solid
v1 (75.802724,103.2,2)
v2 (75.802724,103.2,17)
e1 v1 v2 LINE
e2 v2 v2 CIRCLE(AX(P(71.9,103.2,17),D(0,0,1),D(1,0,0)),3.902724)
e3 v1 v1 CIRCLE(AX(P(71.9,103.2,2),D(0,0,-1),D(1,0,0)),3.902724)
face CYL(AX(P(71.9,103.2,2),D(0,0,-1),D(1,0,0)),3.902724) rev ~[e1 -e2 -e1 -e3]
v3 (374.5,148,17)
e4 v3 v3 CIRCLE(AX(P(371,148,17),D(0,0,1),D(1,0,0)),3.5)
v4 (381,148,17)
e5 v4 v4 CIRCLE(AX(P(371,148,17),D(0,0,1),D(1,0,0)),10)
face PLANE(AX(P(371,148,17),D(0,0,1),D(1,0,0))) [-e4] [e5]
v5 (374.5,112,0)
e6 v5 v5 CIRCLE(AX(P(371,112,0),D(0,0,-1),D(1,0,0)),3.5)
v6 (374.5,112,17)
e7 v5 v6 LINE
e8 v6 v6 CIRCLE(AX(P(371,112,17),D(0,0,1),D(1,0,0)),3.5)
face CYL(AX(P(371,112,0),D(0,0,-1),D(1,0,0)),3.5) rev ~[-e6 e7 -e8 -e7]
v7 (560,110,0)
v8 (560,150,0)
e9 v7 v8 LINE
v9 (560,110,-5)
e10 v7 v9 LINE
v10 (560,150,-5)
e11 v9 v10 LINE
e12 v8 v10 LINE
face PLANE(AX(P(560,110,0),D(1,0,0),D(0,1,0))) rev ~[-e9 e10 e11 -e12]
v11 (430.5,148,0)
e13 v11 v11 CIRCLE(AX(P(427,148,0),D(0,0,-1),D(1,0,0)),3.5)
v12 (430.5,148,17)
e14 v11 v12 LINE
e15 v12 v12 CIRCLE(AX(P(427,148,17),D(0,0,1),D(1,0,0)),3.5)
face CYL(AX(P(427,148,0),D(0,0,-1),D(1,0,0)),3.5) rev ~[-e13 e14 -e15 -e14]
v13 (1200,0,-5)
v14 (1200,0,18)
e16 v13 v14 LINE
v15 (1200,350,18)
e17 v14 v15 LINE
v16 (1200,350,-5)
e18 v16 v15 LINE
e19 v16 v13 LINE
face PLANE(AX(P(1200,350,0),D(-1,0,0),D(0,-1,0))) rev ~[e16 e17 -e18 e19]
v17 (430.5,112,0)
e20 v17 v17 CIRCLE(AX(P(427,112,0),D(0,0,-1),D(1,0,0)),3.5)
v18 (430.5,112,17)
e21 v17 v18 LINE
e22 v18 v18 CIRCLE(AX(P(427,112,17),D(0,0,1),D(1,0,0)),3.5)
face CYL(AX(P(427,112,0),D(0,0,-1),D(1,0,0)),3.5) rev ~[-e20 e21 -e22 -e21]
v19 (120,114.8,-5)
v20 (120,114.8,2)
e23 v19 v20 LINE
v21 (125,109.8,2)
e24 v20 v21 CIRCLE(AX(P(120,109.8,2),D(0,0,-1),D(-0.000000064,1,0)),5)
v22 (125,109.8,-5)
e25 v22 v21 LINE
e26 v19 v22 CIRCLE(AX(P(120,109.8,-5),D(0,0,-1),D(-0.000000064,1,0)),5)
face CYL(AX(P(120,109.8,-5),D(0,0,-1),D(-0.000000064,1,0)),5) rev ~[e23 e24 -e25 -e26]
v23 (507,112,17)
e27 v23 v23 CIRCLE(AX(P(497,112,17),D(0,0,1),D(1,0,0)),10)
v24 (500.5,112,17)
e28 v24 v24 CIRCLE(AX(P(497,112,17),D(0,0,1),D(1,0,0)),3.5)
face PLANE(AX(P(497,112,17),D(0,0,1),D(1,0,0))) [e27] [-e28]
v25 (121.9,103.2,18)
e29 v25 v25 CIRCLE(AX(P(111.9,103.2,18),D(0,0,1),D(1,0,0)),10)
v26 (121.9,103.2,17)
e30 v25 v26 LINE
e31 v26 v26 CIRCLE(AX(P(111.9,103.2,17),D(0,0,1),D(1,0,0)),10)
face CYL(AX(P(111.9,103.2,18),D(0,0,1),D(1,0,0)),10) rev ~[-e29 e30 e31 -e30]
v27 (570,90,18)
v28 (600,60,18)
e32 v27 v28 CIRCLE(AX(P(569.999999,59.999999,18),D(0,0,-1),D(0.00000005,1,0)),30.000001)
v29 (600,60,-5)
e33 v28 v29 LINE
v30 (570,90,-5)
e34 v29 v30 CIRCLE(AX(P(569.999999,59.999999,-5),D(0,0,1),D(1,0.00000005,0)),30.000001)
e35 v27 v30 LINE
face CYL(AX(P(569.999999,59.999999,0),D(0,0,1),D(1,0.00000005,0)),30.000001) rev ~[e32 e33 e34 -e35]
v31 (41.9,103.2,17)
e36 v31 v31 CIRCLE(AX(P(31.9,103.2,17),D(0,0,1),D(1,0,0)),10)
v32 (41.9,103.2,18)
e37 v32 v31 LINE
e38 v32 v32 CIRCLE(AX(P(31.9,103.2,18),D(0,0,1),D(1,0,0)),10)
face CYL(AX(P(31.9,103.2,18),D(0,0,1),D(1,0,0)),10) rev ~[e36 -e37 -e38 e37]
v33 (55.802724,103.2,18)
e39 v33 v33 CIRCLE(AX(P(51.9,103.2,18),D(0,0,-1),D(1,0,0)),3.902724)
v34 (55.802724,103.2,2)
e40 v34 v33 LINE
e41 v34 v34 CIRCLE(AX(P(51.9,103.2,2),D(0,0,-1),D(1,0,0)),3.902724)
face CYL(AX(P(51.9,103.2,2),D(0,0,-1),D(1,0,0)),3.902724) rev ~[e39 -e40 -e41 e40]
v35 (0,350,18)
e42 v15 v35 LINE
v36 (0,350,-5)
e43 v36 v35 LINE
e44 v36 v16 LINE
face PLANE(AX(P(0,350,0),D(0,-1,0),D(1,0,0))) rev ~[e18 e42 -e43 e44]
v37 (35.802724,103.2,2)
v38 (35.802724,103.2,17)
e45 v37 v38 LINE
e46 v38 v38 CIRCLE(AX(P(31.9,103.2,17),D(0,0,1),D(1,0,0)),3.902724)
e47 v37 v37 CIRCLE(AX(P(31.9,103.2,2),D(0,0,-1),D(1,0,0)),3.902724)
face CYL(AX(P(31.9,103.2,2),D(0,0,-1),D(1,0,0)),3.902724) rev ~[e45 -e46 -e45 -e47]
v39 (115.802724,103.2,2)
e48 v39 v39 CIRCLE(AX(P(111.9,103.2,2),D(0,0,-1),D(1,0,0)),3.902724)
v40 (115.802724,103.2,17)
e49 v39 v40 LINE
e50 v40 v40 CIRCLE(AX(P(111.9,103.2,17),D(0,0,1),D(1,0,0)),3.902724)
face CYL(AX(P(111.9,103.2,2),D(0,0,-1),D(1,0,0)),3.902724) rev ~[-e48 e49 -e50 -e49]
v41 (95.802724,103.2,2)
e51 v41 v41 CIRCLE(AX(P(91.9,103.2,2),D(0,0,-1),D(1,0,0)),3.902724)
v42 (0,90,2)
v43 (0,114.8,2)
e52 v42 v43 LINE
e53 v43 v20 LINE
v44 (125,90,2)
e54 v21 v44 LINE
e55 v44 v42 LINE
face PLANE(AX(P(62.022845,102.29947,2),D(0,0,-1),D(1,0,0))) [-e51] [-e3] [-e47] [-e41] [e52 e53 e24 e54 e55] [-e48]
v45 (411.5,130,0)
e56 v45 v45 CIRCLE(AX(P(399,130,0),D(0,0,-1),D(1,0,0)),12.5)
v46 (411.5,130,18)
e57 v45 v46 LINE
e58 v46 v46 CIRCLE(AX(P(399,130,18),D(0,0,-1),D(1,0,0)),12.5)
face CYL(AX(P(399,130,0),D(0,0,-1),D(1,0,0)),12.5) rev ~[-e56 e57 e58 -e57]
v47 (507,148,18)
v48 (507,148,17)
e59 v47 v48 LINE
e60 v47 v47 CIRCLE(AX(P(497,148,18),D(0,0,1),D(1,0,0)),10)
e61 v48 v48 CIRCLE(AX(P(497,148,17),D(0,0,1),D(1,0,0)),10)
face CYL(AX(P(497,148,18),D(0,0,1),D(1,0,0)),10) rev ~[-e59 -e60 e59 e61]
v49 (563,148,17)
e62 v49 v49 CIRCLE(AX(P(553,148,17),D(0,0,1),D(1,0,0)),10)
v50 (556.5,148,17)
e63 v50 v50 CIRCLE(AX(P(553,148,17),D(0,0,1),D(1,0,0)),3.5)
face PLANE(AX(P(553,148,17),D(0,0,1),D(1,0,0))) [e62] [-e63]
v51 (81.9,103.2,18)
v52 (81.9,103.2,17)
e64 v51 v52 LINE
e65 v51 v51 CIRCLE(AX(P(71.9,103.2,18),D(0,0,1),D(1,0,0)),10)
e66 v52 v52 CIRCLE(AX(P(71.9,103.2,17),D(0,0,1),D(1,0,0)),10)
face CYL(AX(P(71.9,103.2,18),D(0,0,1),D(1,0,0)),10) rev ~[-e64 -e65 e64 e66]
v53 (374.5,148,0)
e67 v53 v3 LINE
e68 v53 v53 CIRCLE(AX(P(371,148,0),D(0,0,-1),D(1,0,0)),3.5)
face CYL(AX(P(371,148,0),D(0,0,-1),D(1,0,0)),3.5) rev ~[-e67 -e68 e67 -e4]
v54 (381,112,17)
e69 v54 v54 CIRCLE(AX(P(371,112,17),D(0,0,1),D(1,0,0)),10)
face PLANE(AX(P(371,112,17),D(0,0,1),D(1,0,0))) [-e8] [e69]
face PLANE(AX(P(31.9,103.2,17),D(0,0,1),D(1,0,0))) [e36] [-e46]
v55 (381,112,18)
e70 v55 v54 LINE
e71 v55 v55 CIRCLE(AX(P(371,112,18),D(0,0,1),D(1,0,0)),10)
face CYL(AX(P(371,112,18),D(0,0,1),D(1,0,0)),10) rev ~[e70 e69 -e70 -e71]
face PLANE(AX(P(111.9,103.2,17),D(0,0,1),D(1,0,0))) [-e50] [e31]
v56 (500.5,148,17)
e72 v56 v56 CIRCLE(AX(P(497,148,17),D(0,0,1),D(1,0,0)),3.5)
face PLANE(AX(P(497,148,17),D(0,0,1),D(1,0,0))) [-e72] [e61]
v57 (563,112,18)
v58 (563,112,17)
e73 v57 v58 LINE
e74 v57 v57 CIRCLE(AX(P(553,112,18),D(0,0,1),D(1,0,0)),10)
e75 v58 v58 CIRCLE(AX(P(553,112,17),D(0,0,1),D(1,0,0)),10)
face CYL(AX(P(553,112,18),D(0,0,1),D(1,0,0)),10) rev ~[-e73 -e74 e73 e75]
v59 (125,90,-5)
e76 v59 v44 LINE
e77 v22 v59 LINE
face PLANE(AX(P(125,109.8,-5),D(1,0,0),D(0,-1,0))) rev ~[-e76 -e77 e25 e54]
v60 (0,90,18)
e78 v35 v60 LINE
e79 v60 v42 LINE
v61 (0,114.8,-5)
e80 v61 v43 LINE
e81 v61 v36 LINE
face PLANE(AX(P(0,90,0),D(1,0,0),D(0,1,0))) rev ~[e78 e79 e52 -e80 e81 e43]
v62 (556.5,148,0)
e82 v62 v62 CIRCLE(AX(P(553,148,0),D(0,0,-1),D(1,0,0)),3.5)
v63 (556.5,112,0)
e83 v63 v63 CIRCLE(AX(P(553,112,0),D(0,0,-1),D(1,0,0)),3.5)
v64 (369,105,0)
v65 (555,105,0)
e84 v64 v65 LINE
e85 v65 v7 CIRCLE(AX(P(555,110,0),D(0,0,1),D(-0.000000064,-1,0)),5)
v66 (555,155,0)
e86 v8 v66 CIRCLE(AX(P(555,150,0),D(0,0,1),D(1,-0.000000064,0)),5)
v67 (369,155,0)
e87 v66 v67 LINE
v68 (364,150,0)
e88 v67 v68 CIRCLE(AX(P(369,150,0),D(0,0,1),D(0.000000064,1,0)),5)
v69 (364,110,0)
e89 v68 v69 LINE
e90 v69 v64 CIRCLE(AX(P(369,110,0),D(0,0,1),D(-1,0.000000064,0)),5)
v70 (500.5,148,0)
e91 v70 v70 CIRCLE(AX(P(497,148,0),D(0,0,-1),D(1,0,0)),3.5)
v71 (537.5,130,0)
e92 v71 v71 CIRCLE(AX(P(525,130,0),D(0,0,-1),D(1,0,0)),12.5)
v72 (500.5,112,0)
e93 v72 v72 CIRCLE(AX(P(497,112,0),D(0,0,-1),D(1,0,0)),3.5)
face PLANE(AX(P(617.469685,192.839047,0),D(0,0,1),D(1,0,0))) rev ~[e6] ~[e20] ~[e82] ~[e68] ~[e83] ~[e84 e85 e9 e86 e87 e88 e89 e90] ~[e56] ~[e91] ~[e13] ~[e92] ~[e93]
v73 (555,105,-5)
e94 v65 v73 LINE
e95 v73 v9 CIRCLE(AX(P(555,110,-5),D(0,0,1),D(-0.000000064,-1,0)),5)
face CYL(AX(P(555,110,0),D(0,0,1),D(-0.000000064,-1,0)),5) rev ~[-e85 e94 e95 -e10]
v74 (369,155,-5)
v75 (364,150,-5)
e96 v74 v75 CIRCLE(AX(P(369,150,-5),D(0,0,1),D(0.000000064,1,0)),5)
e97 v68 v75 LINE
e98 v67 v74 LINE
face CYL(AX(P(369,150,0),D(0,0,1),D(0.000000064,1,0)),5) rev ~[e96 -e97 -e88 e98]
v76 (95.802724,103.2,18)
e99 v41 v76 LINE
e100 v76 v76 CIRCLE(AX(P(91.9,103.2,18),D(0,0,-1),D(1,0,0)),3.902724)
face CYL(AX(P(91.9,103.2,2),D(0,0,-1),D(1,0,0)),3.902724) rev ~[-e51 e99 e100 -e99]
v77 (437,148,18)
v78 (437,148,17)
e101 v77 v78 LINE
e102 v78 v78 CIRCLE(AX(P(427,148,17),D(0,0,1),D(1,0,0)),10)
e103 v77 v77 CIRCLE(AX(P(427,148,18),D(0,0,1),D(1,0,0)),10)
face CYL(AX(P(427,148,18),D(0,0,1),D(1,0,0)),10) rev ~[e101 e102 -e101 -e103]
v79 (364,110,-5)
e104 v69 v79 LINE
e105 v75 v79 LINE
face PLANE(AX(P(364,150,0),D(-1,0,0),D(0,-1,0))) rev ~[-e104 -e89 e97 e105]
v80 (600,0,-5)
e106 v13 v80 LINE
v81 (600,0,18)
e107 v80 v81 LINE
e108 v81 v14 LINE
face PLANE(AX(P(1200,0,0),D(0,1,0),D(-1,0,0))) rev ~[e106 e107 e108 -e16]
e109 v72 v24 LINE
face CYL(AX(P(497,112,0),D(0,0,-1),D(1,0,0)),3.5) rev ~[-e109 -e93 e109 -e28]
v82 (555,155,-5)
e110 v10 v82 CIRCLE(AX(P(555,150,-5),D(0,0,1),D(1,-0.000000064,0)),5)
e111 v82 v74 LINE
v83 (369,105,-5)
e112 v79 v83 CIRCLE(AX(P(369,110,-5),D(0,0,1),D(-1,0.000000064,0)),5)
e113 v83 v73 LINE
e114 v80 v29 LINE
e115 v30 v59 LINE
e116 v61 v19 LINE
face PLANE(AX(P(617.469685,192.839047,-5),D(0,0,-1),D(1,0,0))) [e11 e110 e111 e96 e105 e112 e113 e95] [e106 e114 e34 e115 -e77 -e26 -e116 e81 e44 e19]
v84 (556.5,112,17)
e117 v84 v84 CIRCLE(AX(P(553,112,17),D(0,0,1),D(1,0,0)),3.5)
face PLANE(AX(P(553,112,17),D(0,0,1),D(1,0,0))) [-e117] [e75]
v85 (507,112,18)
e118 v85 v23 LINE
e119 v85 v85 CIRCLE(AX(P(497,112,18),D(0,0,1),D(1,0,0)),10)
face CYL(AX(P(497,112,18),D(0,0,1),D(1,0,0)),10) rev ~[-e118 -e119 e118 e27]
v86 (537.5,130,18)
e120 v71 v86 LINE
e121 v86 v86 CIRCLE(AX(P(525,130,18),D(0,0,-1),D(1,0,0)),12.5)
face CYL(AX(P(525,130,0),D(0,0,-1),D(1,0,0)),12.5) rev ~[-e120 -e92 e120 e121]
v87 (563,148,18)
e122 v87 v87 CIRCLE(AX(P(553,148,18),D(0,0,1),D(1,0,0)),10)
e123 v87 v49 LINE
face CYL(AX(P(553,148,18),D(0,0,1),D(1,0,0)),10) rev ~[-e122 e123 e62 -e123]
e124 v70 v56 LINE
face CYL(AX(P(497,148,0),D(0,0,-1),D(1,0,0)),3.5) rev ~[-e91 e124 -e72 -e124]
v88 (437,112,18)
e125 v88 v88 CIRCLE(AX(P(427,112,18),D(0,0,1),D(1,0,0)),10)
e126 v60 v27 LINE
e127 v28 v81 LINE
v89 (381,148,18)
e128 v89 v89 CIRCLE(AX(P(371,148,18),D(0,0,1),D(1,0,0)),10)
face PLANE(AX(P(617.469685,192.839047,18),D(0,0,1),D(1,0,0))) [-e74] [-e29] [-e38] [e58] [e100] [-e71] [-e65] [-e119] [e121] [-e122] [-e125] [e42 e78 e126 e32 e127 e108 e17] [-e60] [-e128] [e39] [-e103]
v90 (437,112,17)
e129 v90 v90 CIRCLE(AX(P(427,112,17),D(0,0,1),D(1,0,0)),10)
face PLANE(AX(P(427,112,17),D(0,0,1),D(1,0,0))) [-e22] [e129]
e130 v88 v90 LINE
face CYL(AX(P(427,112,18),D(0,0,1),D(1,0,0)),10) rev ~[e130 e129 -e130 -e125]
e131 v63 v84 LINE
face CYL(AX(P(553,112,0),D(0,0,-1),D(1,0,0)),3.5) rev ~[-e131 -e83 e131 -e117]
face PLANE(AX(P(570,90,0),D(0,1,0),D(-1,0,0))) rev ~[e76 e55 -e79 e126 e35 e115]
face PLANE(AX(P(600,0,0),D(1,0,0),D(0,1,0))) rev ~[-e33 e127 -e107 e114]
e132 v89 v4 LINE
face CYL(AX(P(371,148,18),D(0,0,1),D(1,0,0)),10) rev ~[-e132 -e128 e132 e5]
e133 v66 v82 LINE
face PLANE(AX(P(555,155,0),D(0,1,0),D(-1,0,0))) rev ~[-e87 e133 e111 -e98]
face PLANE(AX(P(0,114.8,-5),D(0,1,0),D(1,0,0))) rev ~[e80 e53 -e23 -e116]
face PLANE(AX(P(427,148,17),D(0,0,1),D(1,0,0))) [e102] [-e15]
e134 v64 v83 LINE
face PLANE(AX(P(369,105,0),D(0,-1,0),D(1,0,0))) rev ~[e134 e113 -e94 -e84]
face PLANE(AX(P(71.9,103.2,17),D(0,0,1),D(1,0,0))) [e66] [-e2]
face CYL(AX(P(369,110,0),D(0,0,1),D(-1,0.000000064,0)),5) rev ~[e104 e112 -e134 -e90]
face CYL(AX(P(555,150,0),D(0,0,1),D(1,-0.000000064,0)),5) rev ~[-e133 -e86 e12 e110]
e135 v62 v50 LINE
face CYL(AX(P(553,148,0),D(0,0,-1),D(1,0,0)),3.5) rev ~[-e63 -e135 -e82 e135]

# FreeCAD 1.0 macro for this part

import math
import FreeCAD as App
import Part
import Sketcher

doc = App.newDocument("Part")
params = doc.addObject("Spreadsheet::Sheet", "Params")
for row, (alias, value) in enumerate([
    ("sketch1_radius", "30.000001 mm"),
    ("sketch1_width", "600 mm"),
    ("sketch1_width2", "1200 mm"),
    ("sketch1_height", "60 mm"),
    ("sketch1_height2", "350 mm"),
    ("pad1_length", "18 mm"),
    ("sketch2_radius", "30.000001 mm"),
    ("sketch2_radius2", "5 mm"),
    ("sketch2_width", "570 mm"),
    ("sketch2_width2", "1200 mm"),
    ("sketch2_width3", "186 mm"),
    ("pad2_length", "5 mm"),
    ("sketch3_radius", "5 mm"),
    ("sketch3_width", "125 mm"),
    ("sketch3_height", "24.8 mm"),
    ("pocket1_length", "7 mm"),
    ("sketch4_diameter", "25 mm"),
    ("sketch4_diameter2", "7 mm"),
    ("pocket2_length", "25 mm"),
    ("sketch5_diameter", "20 mm"),
    ("sketch5_diameter2", "7 mm"),
    ("pocket3_length", "1 mm"),
    ("pocket4_length", "25 mm"),
    ("sketch7_diameter", "20 mm"),
    ("pocket5_length", "1 mm"),
], start=1):
    params.set(f"A{row}", alias)
    params.set(f"B{row}", "=" + value)
    params.setAlias(f"B{row}", alias)

body = doc.addObject("PartDesign::Body", "Body")

# Sketch on XY plane
sketch1 = doc.addObject("Sketcher::SketchObject", "Sketch")
body.addObject(sketch1)
sketch1.AttachmentSupport = (doc.XY_Plane, [""])
sketch1.MapMode = "FlatFace"
sketch1.addGeometry(Part.LineSegment(App.Vector(600, 60, 0), App.Vector(600, 0, 0)), False)
sketch1.addGeometry(Part.LineSegment(App.Vector(600, 0, 0), App.Vector(1200, 0, 0)), False)
sketch1.addGeometry(Part.LineSegment(App.Vector(1200, 0, 0), App.Vector(1200, 350, 0)), False)
sketch1.addGeometry(Part.LineSegment(App.Vector(1200, 350, 0), App.Vector(0, 350, 0)), False)
sketch1.addGeometry(Part.LineSegment(App.Vector(0, 350, 0), App.Vector(0, 90, 0)), False)
sketch1.addGeometry(Part.LineSegment(App.Vector(0, 90, 0), App.Vector(570, 90, 0)), False)
sketch1.addGeometry(Part.ArcOfCircle(Part.Circle(App.Vector(570, 60, 0), App.Vector(0, 0, 1), 30), math.radians(0), math.radians(90)), False)
sketch1.addConstraint(Sketcher.Constraint("Coincident", 0, 2, 1, 1))
sketch1.addConstraint(Sketcher.Constraint("Coincident", 1, 2, 2, 1))
sketch1.addConstraint(Sketcher.Constraint("Coincident", 2, 2, 3, 1))
sketch1.addConstraint(Sketcher.Constraint("Coincident", 3, 2, 4, 1))
sketch1.addConstraint(Sketcher.Constraint("Coincident", 4, 2, 5, 1))
sketch1.addConstraint(Sketcher.Constraint("Tangent", 5, 2, 6, 2))
sketch1.addConstraint(Sketcher.Constraint("Tangent", 6, 1, 0, 1))
sketch1.addConstraint(Sketcher.Constraint("Vertical", 0))
sketch1.addConstraint(Sketcher.Constraint("Horizontal", 1))
sketch1.addConstraint(Sketcher.Constraint("Vertical", 2))
sketch1.addConstraint(Sketcher.Constraint("Horizontal", 3))
sketch1.addConstraint(Sketcher.Constraint("Vertical", 4))
sketch1.addConstraint(Sketcher.Constraint("Horizontal", 5))
sketch1.addConstraint(Sketcher.Constraint("PointOnObject", 0, 2, -1))
sketch1.addConstraint(Sketcher.Constraint("PointOnObject", 3, 2, -2))
sketch1.addConstraint(Sketcher.Constraint("Radius", 6, 30.000001))
sketch1.addConstraint(Sketcher.Constraint("DistanceX", 1, 1, 1, 2, 600.0))
sketch1.addConstraint(Sketcher.Constraint("DistanceX", 3, 2, 3, 1, 1200.0))
sketch1.addConstraint(Sketcher.Constraint("DistanceY", 0, 2, 0, 1, 60.0))
sketch1.addConstraint(Sketcher.Constraint("DistanceY", 2, 1, 2, 2, 350.0))
sketch1.setExpression("Constraints[15]", "Params.sketch1_radius")
sketch1.setExpression("Constraints[16]", "Params.sketch1_width")
sketch1.setExpression("Constraints[17]", "Params.sketch1_width2")
sketch1.setExpression("Constraints[18]", "Params.sketch1_height")
sketch1.setExpression("Constraints[19]", "Params.sketch1_height2")
pad1 = doc.addObject("PartDesign::Pad", "Pad")
body.addObject(pad1)
pad1.Profile = sketch1
pad1.setExpression("Length", "Params.pad1_length")

# Sketch on XY plane
sketch2 = doc.addObject("Sketcher::SketchObject", "Sketch001")
body.addObject(sketch2)
sketch2.AttachmentSupport = (doc.XY_Plane, [""])
sketch2.MapMode = "FlatFace"
sketch2.addGeometry(Part.LineSegment(App.Vector(600, 0, 0), App.Vector(600, 60, 0)), False)
sketch2.addGeometry(Part.ArcOfCircle(Part.Circle(App.Vector(570, 60, 0), App.Vector(0, 0, 1), 30), math.radians(0), math.radians(90)), False)
sketch2.addGeometry(Part.LineSegment(App.Vector(570, 90, 0), App.Vector(0, 90, 0)), False)
sketch2.addGeometry(Part.LineSegment(App.Vector(0, 90, 0), App.Vector(0, 350, 0)), False)
sketch2.addGeometry(Part.LineSegment(App.Vector(0, 350, 0), App.Vector(1200, 350, 0)), False)
sketch2.addGeometry(Part.LineSegment(App.Vector(1200, 350, 0), App.Vector(1200, 0, 0)), False)
sketch2.addGeometry(Part.LineSegment(App.Vector(1200, 0, 0), App.Vector(600, 0, 0)), False)
sketch2.addGeometry(Part.ArcOfCircle(Part.Circle(App.Vector(369, 110, 0), App.Vector(0, 0, 1), 5), math.radians(180), math.radians(270)), False)
sketch2.addGeometry(Part.LineSegment(App.Vector(369, 105, 0), App.Vector(555, 105, 0)), False)
sketch2.addGeometry(Part.ArcOfCircle(Part.Circle(App.Vector(555, 110, 0), App.Vector(0, 0, 1), 5), math.radians(-90), math.radians(0)), False)
sketch2.addGeometry(Part.LineSegment(App.Vector(560, 110, 0), App.Vector(560, 150, 0)), False)
sketch2.addGeometry(Part.ArcOfCircle(Part.Circle(App.Vector(555, 150, 0), App.Vector(0, 0, 1), 5), math.radians(0), math.radians(90)), False)
sketch2.addGeometry(Part.LineSegment(App.Vector(555, 155, 0), App.Vector(369, 155, 0)), False)
sketch2.addGeometry(Part.ArcOfCircle(Part.Circle(App.Vector(369, 150, 0), App.Vector(0, 0, 1), 5), math.radians(90), math.radians(180)), False)
sketch2.addGeometry(Part.LineSegment(App.Vector(364, 150, 0), App.Vector(364, 110, 0)), False)
sketch2.addConstraint(Sketcher.Constraint("Tangent", 0, 2, 1, 1))
sketch2.addConstraint(Sketcher.Constraint("Tangent", 1, 2, 2, 1))
sketch2.addConstraint(Sketcher.Constraint("Coincident", 2, 2, 3, 1))
sketch2.addConstraint(Sketcher.Constraint("Coincident", 3, 2, 4, 1))
sketch2.addConstraint(Sketcher.Constraint("Coincident", 4, 2, 5, 1))
sketch2.addConstraint(Sketcher.Constraint("Coincident", 5, 2, 6, 1))
sketch2.addConstraint(Sketcher.Constraint("Coincident", 6, 2, 0, 1))
sketch2.addConstraint(Sketcher.Constraint("Tangent", 7, 2, 8, 1))
sketch2.addConstraint(Sketcher.Constraint("Tangent", 8, 2, 9, 1))
sketch2.addConstraint(Sketcher.Constraint("Tangent", 9, 2, 10, 1))
sketch2.addConstraint(Sketcher.Constraint("Tangent", 10, 2, 11, 1))
sketch2.addConstraint(Sketcher.Constraint("Tangent", 11, 2, 12, 1))
sketch2.addConstraint(Sketcher.Constraint("Tangent", 12, 2, 13, 1))
sketch2.addConstraint(Sketcher.Constraint("Tangent", 13, 2, 14, 1))
sketch2.addConstraint(Sketcher.Constraint("Tangent", 14, 2, 7, 1))
sketch2.addConstraint(Sketcher.Constraint("Vertical", 0))
sketch2.addConstraint(Sketcher.Constraint("Horizontal", 2))
sketch2.addConstraint(Sketcher.Constraint("Vertical", 3))
sketch2.addConstraint(Sketcher.Constraint("Horizontal", 4))
sketch2.addConstraint(Sketcher.Constraint("Vertical", 5))
sketch2.addConstraint(Sketcher.Constraint("Horizontal", 6))
sketch2.addConstraint(Sketcher.Constraint("Horizontal", 8))
sketch2.addConstraint(Sketcher.Constraint("Vertical", 10))
sketch2.addConstraint(Sketcher.Constraint("Horizontal", 12))
sketch2.addConstraint(Sketcher.Constraint("Vertical", 14))
sketch2.addConstraint(Sketcher.Constraint("Equal", 7, 9))
sketch2.addConstraint(Sketcher.Constraint("Equal", 9, 11))
sketch2.addConstraint(Sketcher.Constraint("Equal", 11, 13))
sketch2.addConstraint(Sketcher.Constraint("PointOnObject", 2, 2, -2))
sketch2.addConstraint(Sketcher.Constraint("PointOnObject", 5, 2, -1))
sketch2.addConstraint(Sketcher.Constraint("Radius", 1, 30.000001))
sketch2.addConstraint(Sketcher.Constraint("Radius", 7, 5.0))
sketch2.addConstraint(Sketcher.Constraint("DistanceX", 2, 2, 2, 1, 570.0))
sketch2.addConstraint(Sketcher.Constraint("DistanceX", 4, 1, 4, 2, 1200.0))
sketch2.addConstraint(Sketcher.Constraint("DistanceX", 8, 1, 8, 2, 186.0))
sketch2.addConstraint(Sketcher.Constraint("DistanceY", 0, 1, 0, 2, 60.0))
sketch2.addConstraint(Sketcher.Constraint("DistanceY", 3, 1, 3, 2, 260.0))
sketch2.addConstraint(Sketcher.Constraint("DistanceY", 10, 1, 10, 2, 40.0))
sketch2.addConstraint(Sketcher.Constraint("DistanceX", -1, 1, 7, 3, 369.0))
sketch2.addConstraint(Sketcher.Constraint("DistanceY", -1, 1, 7, 3, 110.0))
sketch2.setExpression("Constraints[30]", "Params.sketch2_radius")
sketch2.setExpression("Constraints[31]", "Params.sketch2_radius2")
sketch2.setExpression("Constraints[32]", "Params.sketch2_width")
sketch2.setExpression("Constraints[33]", "Params.sketch2_width2")
sketch2.setExpression("Constraints[34]", "Params.sketch2_width3")
pad2 = doc.addObject("PartDesign::Pad", "Pad001")
body.addObject(pad2)
pad2.Profile = sketch2
pad2.setExpression("Length", "Params.pad2_length")
pad2.Reversed = True

# Sketch on XY plane
sketch3 = doc.addObject("Sketcher::SketchObject", "Sketch002")
body.addObject(sketch3)
sketch3.AttachmentSupport = (doc.XY_Plane, [""])
sketch3.MapMode = "FlatFace"
sketch3.AttachmentOffset = App.Placement(App.Vector(0, 0, -5), App.Rotation())
sketch3.addGeometry(Part.LineSegment(App.Vector(125, 90, 0), App.Vector(0, 90, 0)), False)
sketch3.addGeometry(Part.LineSegment(App.Vector(0, 90, 0), App.Vector(0, 114.8, 0)), False)
sketch3.addGeometry(Part.LineSegment(App.Vector(0, 114.8, 0), App.Vector(120, 114.8, 0)), False)
sketch3.addGeometry(Part.ArcOfCircle(Part.Circle(App.Vector(120, 109.8, 0), App.Vector(0, 0, 1), 5), math.radians(0), math.radians(90)), False)
sketch3.addGeometry(Part.LineSegment(App.Vector(125, 109.8, 0), App.Vector(125, 90, 0)), False)
sketch3.addConstraint(Sketcher.Constraint("Coincident", 0, 2, 1, 1))
sketch3.addConstraint(Sketcher.Constraint("Coincident", 1, 2, 2, 1))
sketch3.addConstraint(Sketcher.Constraint("Tangent", 2, 2, 3, 2))
sketch3.addConstraint(Sketcher.Constraint("Tangent", 3, 1, 4, 1))
sketch3.addConstraint(Sketcher.Constraint("Coincident", 4, 2, 0, 1))
sketch3.addConstraint(Sketcher.Constraint("Horizontal", 0))
sketch3.addConstraint(Sketcher.Constraint("Vertical", 1))
sketch3.addConstraint(Sketcher.Constraint("Horizontal", 2))
sketch3.addConstraint(Sketcher.Constraint("Vertical", 4))
sketch3.addConstraint(Sketcher.Constraint("PointOnObject", 0, 2, -2))
sketch3.addConstraint(Sketcher.Constraint("Radius", 3, 5.0))
sketch3.addConstraint(Sketcher.Constraint("DistanceX", 0, 2, 0, 1, 125.0))
sketch3.addConstraint(Sketcher.Constraint("DistanceY", 1, 1, 1, 2, 24.8))
sketch3.addConstraint(Sketcher.Constraint("DistanceY", -1, 1, 0, 2, 90.0))
sketch3.setExpression("Constraints[10]", "Params.sketch3_radius")
sketch3.setExpression("Constraints[11]", "Params.sketch3_width")
sketch3.setExpression("Constraints[12]", "Params.sketch3_height")
pocket1 = doc.addObject("PartDesign::Pocket", "Pocket")
body.addObject(pocket1)
pocket1.Profile = sketch3
pocket1.setExpression("Length", "Params.pocket1_length")
pocket1.Reversed = True

# Sketch on XY plane
sketch4 = doc.addObject("Sketcher::SketchObject", "Sketch003")
body.addObject(sketch4)
sketch4.AttachmentSupport = (doc.XY_Plane, [""])
sketch4.MapMode = "FlatFace"
sketch4.addGeometry(Part.Circle(App.Vector(525, 130, 0), App.Vector(0, 0, 1), 12.5), False)
sketch4.addGeometry(Part.Circle(App.Vector(399, 130, 0), App.Vector(0, 0, 1), 12.5), False)
sketch4.addGeometry(Part.Circle(App.Vector(371, 112, 0), App.Vector(0, 0, 1), 3.5), False)
sketch4.addGeometry(Part.Circle(App.Vector(427, 112, 0), App.Vector(0, 0, 1), 3.5), False)
sketch4.addGeometry(Part.Circle(App.Vector(371, 148, 0), App.Vector(0, 0, 1), 3.5), False)
sketch4.addGeometry(Part.Circle(App.Vector(427, 148, 0), App.Vector(0, 0, 1), 3.5), False)
sketch4.addGeometry(Part.Circle(App.Vector(497, 148, 0), App.Vector(0, 0, 1), 3.5), False)
sketch4.addGeometry(Part.Circle(App.Vector(497, 112, 0), App.Vector(0, 0, 1), 3.5), False)
sketch4.addGeometry(Part.Circle(App.Vector(553, 112, 0), App.Vector(0, 0, 1), 3.5), False)
sketch4.addGeometry(Part.Circle(App.Vector(553, 148, 0), App.Vector(0, 0, 1), 3.5), False)
sketch4.addConstraint(Sketcher.Constraint("Equal", 0, 1))
sketch4.addConstraint(Sketcher.Constraint("Equal", 2, 3))
sketch4.addConstraint(Sketcher.Constraint("Equal", 3, 4))
sketch4.addConstraint(Sketcher.Constraint("Equal", 4, 5))
sketch4.addConstraint(Sketcher.Constraint("Equal", 5, 6))
sketch4.addConstraint(Sketcher.Constraint("Equal", 6, 7))
sketch4.addConstraint(Sketcher.Constraint("Equal", 7, 8))
sketch4.addConstraint(Sketcher.Constraint("Equal", 8, 9))
sketch4.addConstraint(Sketcher.Constraint("Horizontal", 0, 3, 1, 3))
sketch4.addConstraint(Sketcher.Constraint("Horizontal", 2, 3, 3, 3))
sketch4.addConstraint(Sketcher.Constraint("Horizontal", 4, 3, 5, 3))
sketch4.addConstraint(Sketcher.Constraint("Horizontal", 5, 3, 6, 3))
sketch4.addConstraint(Sketcher.Constraint("Horizontal", 3, 3, 7, 3))
sketch4.addConstraint(Sketcher.Constraint("Horizontal", 7, 3, 8, 3))
sketch4.addConstraint(Sketcher.Constraint("Horizontal", 6, 3, 9, 3))
sketch4.addConstraint(Sketcher.Constraint("Vertical", 2, 3, 4, 3))
sketch4.addConstraint(Sketcher.Constraint("Vertical", 3, 3, 5, 3))
sketch4.addConstraint(Sketcher.Constraint("Vertical", 6, 3, 7, 3))
sketch4.addConstraint(Sketcher.Constraint("Vertical", 8, 3, 9, 3))
sketch4.addConstraint(Sketcher.Constraint("Diameter", 0, 25.0))
sketch4.addConstraint(Sketcher.Constraint("Diameter", 2, 7.0))
sketch4.addConstraint(Sketcher.Constraint("DistanceX", -1, 1, 0, 3, 525.0))
sketch4.addConstraint(Sketcher.Constraint("DistanceY", -1, 1, 0, 3, 130.0))
sketch4.addConstraint(Sketcher.Constraint("DistanceX", -1, 1, 1, 3, 399.0))
sketch4.addConstraint(Sketcher.Constraint("DistanceX", -1, 1, 2, 3, 371.0))
sketch4.addConstraint(Sketcher.Constraint("DistanceY", -1, 1, 2, 3, 112.0))
sketch4.addConstraint(Sketcher.Constraint("DistanceX", -1, 1, 3, 3, 427.0))
sketch4.addConstraint(Sketcher.Constraint("DistanceY", -1, 1, 4, 3, 148.0))
sketch4.addConstraint(Sketcher.Constraint("DistanceX", -1, 1, 6, 3, 497.0))
sketch4.addConstraint(Sketcher.Constraint("DistanceX", -1, 1, 8, 3, 553.0))
sketch4.setExpression("Constraints[19]", "Params.sketch4_diameter")
sketch4.setExpression("Constraints[20]", "Params.sketch4_diameter2")
pocket2 = doc.addObject("PartDesign::Pocket", "Pocket001")
body.addObject(pocket2)
pocket2.Profile = sketch4
pocket2.setExpression("Length", "Params.pocket2_length")
pocket2.Reversed = True

# Sketch on XY plane
sketch5 = doc.addObject("Sketcher::SketchObject", "Sketch004")
body.addObject(sketch5)
sketch5.AttachmentSupport = (doc.XY_Plane, [""])
sketch5.MapMode = "FlatFace"
sketch5.AttachmentOffset = App.Placement(App.Vector(0, 0, 18), App.Rotation())
sketch5.addGeometry(Part.Circle(App.Vector(371, 148, 0), App.Vector(0, 0, 1), 10), False)
sketch5.addGeometry(Part.Circle(App.Vector(371, 148, 0), App.Vector(0, 0, 1), 3.5), False)
sketch5.addGeometry(Part.Circle(App.Vector(427, 148, 0), App.Vector(0, 0, 1), 10), False)
sketch5.addGeometry(Part.Circle(App.Vector(427, 148, 0), App.Vector(0, 0, 1), 3.5), False)
sketch5.addGeometry(Part.Circle(App.Vector(497, 148, 0), App.Vector(0, 0, 1), 10), False)
sketch5.addGeometry(Part.Circle(App.Vector(497, 148, 0), App.Vector(0, 0, 1), 3.5), False)
sketch5.addGeometry(Part.Circle(App.Vector(553, 148, 0), App.Vector(0, 0, 1), 10), False)
sketch5.addGeometry(Part.Circle(App.Vector(553, 148, 0), App.Vector(0, 0, 1), 3.5), False)
sketch5.addGeometry(Part.Circle(App.Vector(553, 112, 0), App.Vector(0, 0, 1), 10), False)
sketch5.addGeometry(Part.Circle(App.Vector(553, 112, 0), App.Vector(0, 0, 1), 3.5), False)
sketch5.addGeometry(Part.Circle(App.Vector(497, 112, 0), App.Vector(0, 0, 1), 10), False)
sketch5.addGeometry(Part.Circle(App.Vector(497, 112, 0), App.Vector(0, 0, 1), 3.5), False)
sketch5.addGeometry(Part.Circle(App.Vector(427, 112, 0), App.Vector(0, 0, 1), 10), False)
sketch5.addGeometry(Part.Circle(App.Vector(427, 112, 0), App.Vector(0, 0, 1), 3.5), False)
sketch5.addGeometry(Part.Circle(App.Vector(371, 112, 0), App.Vector(0, 0, 1), 10), False)
sketch5.addGeometry(Part.Circle(App.Vector(371, 112, 0), App.Vector(0, 0, 1), 3.5), False)
sketch5.addConstraint(Sketcher.Constraint("Coincident", 1, 3, 0, 3))
sketch5.addConstraint(Sketcher.Constraint("Coincident", 3, 3, 2, 3))
sketch5.addConstraint(Sketcher.Constraint("Coincident", 5, 3, 4, 3))
sketch5.addConstraint(Sketcher.Constraint("Coincident", 7, 3, 6, 3))
sketch5.addConstraint(Sketcher.Constraint("Coincident", 9, 3, 8, 3))
sketch5.addConstraint(Sketcher.Constraint("Coincident", 11, 3, 10, 3))
sketch5.addConstraint(Sketcher.Constraint("Coincident", 13, 3, 12, 3))
sketch5.addConstraint(Sketcher.Constraint("Coincident", 15, 3, 14, 3))
sketch5.addConstraint(Sketcher.Constraint("Equal", 0, 2))
sketch5.addConstraint(Sketcher.Constraint("Equal", 1, 3))
sketch5.addConstraint(Sketcher.Constraint("Equal", 2, 4))
sketch5.addConstraint(Sketcher.Constraint("Equal", 3, 5))
sketch5.addConstraint(Sketcher.Constraint("Equal", 4, 6))
sketch5.addConstraint(Sketcher.Constraint("Equal", 5, 7))
sketch5.addConstraint(Sketcher.Constraint("Equal", 6, 8))
sketch5.addConstraint(Sketcher.Constraint("Equal", 7, 9))
sketch5.addConstraint(Sketcher.Constraint("Equal", 8, 10))
sketch5.addConstraint(Sketcher.Constraint("Equal", 9, 11))
sketch5.addConstraint(Sketcher.Constraint("Equal", 10, 12))
sketch5.addConstraint(Sketcher.Constraint("Equal", 11, 13))
sketch5.addConstraint(Sketcher.Constraint("Equal", 12, 14))
sketch5.addConstraint(Sketcher.Constraint("Equal", 13, 15))
sketch5.addConstraint(Sketcher.Constraint("Horizontal", 1, 3, 2, 3))
sketch5.addConstraint(Sketcher.Constraint("Horizontal", 3, 3, 4, 3))
sketch5.addConstraint(Sketcher.Constraint("Horizontal", 5, 3, 6, 3))
sketch5.addConstraint(Sketcher.Constraint("Horizontal", 9, 3, 10, 3))
sketch5.addConstraint(Sketcher.Constraint("Horizontal", 11, 3, 12, 3))
sketch5.addConstraint(Sketcher.Constraint("Horizontal", 13, 3, 14, 3))
sketch5.addConstraint(Sketcher.Constraint("Vertical", 7, 3, 8, 3))
sketch5.addConstraint(Sketcher.Constraint("Vertical", 5, 3, 10, 3))
sketch5.addConstraint(Sketcher.Constraint("Vertical", 3, 3, 12, 3))
sketch5.addConstraint(Sketcher.Constraint("Vertical", 1, 3, 14, 3))
sketch5.addConstraint(Sketcher.Constraint("Diameter", 0, 20.0))
sketch5.addConstraint(Sketcher.Constraint("Diameter", 1, 7.0))
sketch5.addConstraint(Sketcher.Constraint("DistanceX", -1, 1, 0, 3, 371.0))
sketch5.addConstraint(Sketcher.Constraint("DistanceY", -1, 1, 0, 3, 148.0))
sketch5.addConstraint(Sketcher.Constraint("DistanceX", -1, 1, 2, 3, 427.0))
sketch5.addConstraint(Sketcher.Constraint("DistanceX", -1, 1, 4, 3, 497.0))
sketch5.addConstraint(Sketcher.Constraint("DistanceX", -1, 1, 6, 3, 553.0))
sketch5.addConstraint(Sketcher.Constraint("DistanceY", -1, 1, 8, 3, 112.0))
sketch5.setExpression("Constraints[32]", "Params.sketch5_diameter")
sketch5.setExpression("Constraints[33]", "Params.sketch5_diameter2")
pocket3 = doc.addObject("PartDesign::Pocket", "Pocket002")
body.addObject(pocket3)
pocket3.Profile = sketch5
pocket3.setExpression("Length", "Params.pocket3_length")

# Sketch on XY plane
sketch6 = doc.addObject("Sketcher::SketchObject", "Sketch005")
body.addObject(sketch6)
sketch6.AttachmentSupport = (doc.XY_Plane, [""])
sketch6.MapMode = "FlatFace"
sketch6.AttachmentOffset = App.Placement(App.Vector(0, 0, 2), App.Rotation())
sketch6.addGeometry(Part.Circle(App.Vector(111.9, 103.2, 0), App.Vector(0, 0, 1), 3.9), False)
sketch6.addGeometry(Part.Circle(App.Vector(91.9, 103.2, 0), App.Vector(0, 0, 1), 3.9), False)
sketch6.addGeometry(Part.Circle(App.Vector(71.9, 103.2, 0), App.Vector(0, 0, 1), 3.9), False)
sketch6.addGeometry(Part.Circle(App.Vector(51.9, 103.2, 0), App.Vector(0, 0, 1), 3.9), False)
sketch6.addGeometry(Part.Circle(App.Vector(31.9, 103.2, 0), App.Vector(0, 0, 1), 3.9), False)
sketch6.addConstraint(Sketcher.Constraint("Equal", 0, 1))
sketch6.addConstraint(Sketcher.Constraint("Equal", 1, 2))
sketch6.addConstraint(Sketcher.Constraint("Equal", 2, 3))
sketch6.addConstraint(Sketcher.Constraint("Equal", 3, 4))
sketch6.addConstraint(Sketcher.Constraint("Horizontal", 0, 3, 1, 3))
sketch6.addConstraint(Sketcher.Constraint("Horizontal", 1, 3, 2, 3))
sketch6.addConstraint(Sketcher.Constraint("Horizontal", 2, 3, 3, 3))
sketch6.addConstraint(Sketcher.Constraint("Horizontal", 3, 3, 4, 3))
sketch6.addConstraint(Sketcher.Constraint("DistanceX", 1, 3, 0, 3, 20.0))
sketch6.addConstraint(Sketcher.Constraint("DistanceX", 2, 3, 1, 3, 20.0))
sketch6.addConstraint(Sketcher.Constraint("DistanceX", 3, 3, 2, 3, 20.0))
sketch6.addConstraint(Sketcher.Constraint("DistanceX", 4, 3, 3, 3, 20.0))
sketch6.addConstraint(Sketcher.Constraint("DistanceX", -1, 1, 0, 3, 111.9))
sketch6.addConstraint(Sketcher.Constraint("DistanceY", -1, 1, 0, 3, 103.2))
sketch6.addConstraint(Sketcher.Constraint("Diameter", 0, 7.805448))
pocket4 = doc.addObject("PartDesign::Pocket", "Pocket003")
body.addObject(pocket4)
pocket4.Profile = sketch6
pocket4.setExpression("Length", "Params.pocket4_length")
pocket4.Reversed = True

# Sketch on XY plane
sketch7 = doc.addObject("Sketcher::SketchObject", "Sketch006")
body.addObject(sketch7)
sketch7.AttachmentSupport = (doc.XY_Plane, [""])
sketch7.MapMode = "FlatFace"
sketch7.AttachmentOffset = App.Placement(App.Vector(0, 0, 18), App.Rotation())
sketch7.addGeometry(Part.Circle(App.Vector(31.9, 103.2, 0), App.Vector(0, 0, 1), 10), False)
sketch7.addGeometry(Part.Circle(App.Vector(31.9, 103.2, 0), App.Vector(0, 0, 1), 3.9), False)
sketch7.addGeometry(Part.Circle(App.Vector(71.9, 103.2, 0), App.Vector(0, 0, 1), 10), False)
sketch7.addGeometry(Part.Circle(App.Vector(71.9, 103.2, 0), App.Vector(0, 0, 1), 3.9), False)
sketch7.addGeometry(Part.Circle(App.Vector(111.9, 103.2, 0), App.Vector(0, 0, 1), 10), False)
sketch7.addGeometry(Part.Circle(App.Vector(111.9, 103.2, 0), App.Vector(0, 0, 1), 3.9), False)
sketch7.addConstraint(Sketcher.Constraint("Coincident", 1, 3, 0, 3))
sketch7.addConstraint(Sketcher.Constraint("Coincident", 3, 3, 2, 3))
sketch7.addConstraint(Sketcher.Constraint("Coincident", 5, 3, 4, 3))
sketch7.addConstraint(Sketcher.Constraint("Equal", 0, 2))
sketch7.addConstraint(Sketcher.Constraint("Equal", 1, 3))
sketch7.addConstraint(Sketcher.Constraint("Equal", 2, 4))
sketch7.addConstraint(Sketcher.Constraint("Equal", 3, 5))
sketch7.addConstraint(Sketcher.Constraint("Horizontal", 1, 3, 2, 3))
sketch7.addConstraint(Sketcher.Constraint("Horizontal", 3, 3, 4, 3))
sketch7.addConstraint(Sketcher.Constraint("Diameter", 0, 20.0))
sketch7.addConstraint(Sketcher.Constraint("DistanceX", 0, 3, 2, 3, 40.0))
sketch7.addConstraint(Sketcher.Constraint("DistanceX", 2, 3, 4, 3, 40.0))
sketch7.addConstraint(Sketcher.Constraint("DistanceX", -1, 1, 0, 3, 31.9))
sketch7.addConstraint(Sketcher.Constraint("DistanceY", -1, 1, 0, 3, 103.2))
sketch7.addConstraint(Sketcher.Constraint("Diameter", 1, 7.805448))
sketch7.setExpression("Constraints[9]", "Params.sketch7_diameter")
pocket5 = doc.addObject("PartDesign::Pocket", "Pocket004")
body.addObject(pocket5)
pocket5.Profile = sketch7
pocket5.setExpression("Length", "Params.pocket5_length")

doc.recompute()
